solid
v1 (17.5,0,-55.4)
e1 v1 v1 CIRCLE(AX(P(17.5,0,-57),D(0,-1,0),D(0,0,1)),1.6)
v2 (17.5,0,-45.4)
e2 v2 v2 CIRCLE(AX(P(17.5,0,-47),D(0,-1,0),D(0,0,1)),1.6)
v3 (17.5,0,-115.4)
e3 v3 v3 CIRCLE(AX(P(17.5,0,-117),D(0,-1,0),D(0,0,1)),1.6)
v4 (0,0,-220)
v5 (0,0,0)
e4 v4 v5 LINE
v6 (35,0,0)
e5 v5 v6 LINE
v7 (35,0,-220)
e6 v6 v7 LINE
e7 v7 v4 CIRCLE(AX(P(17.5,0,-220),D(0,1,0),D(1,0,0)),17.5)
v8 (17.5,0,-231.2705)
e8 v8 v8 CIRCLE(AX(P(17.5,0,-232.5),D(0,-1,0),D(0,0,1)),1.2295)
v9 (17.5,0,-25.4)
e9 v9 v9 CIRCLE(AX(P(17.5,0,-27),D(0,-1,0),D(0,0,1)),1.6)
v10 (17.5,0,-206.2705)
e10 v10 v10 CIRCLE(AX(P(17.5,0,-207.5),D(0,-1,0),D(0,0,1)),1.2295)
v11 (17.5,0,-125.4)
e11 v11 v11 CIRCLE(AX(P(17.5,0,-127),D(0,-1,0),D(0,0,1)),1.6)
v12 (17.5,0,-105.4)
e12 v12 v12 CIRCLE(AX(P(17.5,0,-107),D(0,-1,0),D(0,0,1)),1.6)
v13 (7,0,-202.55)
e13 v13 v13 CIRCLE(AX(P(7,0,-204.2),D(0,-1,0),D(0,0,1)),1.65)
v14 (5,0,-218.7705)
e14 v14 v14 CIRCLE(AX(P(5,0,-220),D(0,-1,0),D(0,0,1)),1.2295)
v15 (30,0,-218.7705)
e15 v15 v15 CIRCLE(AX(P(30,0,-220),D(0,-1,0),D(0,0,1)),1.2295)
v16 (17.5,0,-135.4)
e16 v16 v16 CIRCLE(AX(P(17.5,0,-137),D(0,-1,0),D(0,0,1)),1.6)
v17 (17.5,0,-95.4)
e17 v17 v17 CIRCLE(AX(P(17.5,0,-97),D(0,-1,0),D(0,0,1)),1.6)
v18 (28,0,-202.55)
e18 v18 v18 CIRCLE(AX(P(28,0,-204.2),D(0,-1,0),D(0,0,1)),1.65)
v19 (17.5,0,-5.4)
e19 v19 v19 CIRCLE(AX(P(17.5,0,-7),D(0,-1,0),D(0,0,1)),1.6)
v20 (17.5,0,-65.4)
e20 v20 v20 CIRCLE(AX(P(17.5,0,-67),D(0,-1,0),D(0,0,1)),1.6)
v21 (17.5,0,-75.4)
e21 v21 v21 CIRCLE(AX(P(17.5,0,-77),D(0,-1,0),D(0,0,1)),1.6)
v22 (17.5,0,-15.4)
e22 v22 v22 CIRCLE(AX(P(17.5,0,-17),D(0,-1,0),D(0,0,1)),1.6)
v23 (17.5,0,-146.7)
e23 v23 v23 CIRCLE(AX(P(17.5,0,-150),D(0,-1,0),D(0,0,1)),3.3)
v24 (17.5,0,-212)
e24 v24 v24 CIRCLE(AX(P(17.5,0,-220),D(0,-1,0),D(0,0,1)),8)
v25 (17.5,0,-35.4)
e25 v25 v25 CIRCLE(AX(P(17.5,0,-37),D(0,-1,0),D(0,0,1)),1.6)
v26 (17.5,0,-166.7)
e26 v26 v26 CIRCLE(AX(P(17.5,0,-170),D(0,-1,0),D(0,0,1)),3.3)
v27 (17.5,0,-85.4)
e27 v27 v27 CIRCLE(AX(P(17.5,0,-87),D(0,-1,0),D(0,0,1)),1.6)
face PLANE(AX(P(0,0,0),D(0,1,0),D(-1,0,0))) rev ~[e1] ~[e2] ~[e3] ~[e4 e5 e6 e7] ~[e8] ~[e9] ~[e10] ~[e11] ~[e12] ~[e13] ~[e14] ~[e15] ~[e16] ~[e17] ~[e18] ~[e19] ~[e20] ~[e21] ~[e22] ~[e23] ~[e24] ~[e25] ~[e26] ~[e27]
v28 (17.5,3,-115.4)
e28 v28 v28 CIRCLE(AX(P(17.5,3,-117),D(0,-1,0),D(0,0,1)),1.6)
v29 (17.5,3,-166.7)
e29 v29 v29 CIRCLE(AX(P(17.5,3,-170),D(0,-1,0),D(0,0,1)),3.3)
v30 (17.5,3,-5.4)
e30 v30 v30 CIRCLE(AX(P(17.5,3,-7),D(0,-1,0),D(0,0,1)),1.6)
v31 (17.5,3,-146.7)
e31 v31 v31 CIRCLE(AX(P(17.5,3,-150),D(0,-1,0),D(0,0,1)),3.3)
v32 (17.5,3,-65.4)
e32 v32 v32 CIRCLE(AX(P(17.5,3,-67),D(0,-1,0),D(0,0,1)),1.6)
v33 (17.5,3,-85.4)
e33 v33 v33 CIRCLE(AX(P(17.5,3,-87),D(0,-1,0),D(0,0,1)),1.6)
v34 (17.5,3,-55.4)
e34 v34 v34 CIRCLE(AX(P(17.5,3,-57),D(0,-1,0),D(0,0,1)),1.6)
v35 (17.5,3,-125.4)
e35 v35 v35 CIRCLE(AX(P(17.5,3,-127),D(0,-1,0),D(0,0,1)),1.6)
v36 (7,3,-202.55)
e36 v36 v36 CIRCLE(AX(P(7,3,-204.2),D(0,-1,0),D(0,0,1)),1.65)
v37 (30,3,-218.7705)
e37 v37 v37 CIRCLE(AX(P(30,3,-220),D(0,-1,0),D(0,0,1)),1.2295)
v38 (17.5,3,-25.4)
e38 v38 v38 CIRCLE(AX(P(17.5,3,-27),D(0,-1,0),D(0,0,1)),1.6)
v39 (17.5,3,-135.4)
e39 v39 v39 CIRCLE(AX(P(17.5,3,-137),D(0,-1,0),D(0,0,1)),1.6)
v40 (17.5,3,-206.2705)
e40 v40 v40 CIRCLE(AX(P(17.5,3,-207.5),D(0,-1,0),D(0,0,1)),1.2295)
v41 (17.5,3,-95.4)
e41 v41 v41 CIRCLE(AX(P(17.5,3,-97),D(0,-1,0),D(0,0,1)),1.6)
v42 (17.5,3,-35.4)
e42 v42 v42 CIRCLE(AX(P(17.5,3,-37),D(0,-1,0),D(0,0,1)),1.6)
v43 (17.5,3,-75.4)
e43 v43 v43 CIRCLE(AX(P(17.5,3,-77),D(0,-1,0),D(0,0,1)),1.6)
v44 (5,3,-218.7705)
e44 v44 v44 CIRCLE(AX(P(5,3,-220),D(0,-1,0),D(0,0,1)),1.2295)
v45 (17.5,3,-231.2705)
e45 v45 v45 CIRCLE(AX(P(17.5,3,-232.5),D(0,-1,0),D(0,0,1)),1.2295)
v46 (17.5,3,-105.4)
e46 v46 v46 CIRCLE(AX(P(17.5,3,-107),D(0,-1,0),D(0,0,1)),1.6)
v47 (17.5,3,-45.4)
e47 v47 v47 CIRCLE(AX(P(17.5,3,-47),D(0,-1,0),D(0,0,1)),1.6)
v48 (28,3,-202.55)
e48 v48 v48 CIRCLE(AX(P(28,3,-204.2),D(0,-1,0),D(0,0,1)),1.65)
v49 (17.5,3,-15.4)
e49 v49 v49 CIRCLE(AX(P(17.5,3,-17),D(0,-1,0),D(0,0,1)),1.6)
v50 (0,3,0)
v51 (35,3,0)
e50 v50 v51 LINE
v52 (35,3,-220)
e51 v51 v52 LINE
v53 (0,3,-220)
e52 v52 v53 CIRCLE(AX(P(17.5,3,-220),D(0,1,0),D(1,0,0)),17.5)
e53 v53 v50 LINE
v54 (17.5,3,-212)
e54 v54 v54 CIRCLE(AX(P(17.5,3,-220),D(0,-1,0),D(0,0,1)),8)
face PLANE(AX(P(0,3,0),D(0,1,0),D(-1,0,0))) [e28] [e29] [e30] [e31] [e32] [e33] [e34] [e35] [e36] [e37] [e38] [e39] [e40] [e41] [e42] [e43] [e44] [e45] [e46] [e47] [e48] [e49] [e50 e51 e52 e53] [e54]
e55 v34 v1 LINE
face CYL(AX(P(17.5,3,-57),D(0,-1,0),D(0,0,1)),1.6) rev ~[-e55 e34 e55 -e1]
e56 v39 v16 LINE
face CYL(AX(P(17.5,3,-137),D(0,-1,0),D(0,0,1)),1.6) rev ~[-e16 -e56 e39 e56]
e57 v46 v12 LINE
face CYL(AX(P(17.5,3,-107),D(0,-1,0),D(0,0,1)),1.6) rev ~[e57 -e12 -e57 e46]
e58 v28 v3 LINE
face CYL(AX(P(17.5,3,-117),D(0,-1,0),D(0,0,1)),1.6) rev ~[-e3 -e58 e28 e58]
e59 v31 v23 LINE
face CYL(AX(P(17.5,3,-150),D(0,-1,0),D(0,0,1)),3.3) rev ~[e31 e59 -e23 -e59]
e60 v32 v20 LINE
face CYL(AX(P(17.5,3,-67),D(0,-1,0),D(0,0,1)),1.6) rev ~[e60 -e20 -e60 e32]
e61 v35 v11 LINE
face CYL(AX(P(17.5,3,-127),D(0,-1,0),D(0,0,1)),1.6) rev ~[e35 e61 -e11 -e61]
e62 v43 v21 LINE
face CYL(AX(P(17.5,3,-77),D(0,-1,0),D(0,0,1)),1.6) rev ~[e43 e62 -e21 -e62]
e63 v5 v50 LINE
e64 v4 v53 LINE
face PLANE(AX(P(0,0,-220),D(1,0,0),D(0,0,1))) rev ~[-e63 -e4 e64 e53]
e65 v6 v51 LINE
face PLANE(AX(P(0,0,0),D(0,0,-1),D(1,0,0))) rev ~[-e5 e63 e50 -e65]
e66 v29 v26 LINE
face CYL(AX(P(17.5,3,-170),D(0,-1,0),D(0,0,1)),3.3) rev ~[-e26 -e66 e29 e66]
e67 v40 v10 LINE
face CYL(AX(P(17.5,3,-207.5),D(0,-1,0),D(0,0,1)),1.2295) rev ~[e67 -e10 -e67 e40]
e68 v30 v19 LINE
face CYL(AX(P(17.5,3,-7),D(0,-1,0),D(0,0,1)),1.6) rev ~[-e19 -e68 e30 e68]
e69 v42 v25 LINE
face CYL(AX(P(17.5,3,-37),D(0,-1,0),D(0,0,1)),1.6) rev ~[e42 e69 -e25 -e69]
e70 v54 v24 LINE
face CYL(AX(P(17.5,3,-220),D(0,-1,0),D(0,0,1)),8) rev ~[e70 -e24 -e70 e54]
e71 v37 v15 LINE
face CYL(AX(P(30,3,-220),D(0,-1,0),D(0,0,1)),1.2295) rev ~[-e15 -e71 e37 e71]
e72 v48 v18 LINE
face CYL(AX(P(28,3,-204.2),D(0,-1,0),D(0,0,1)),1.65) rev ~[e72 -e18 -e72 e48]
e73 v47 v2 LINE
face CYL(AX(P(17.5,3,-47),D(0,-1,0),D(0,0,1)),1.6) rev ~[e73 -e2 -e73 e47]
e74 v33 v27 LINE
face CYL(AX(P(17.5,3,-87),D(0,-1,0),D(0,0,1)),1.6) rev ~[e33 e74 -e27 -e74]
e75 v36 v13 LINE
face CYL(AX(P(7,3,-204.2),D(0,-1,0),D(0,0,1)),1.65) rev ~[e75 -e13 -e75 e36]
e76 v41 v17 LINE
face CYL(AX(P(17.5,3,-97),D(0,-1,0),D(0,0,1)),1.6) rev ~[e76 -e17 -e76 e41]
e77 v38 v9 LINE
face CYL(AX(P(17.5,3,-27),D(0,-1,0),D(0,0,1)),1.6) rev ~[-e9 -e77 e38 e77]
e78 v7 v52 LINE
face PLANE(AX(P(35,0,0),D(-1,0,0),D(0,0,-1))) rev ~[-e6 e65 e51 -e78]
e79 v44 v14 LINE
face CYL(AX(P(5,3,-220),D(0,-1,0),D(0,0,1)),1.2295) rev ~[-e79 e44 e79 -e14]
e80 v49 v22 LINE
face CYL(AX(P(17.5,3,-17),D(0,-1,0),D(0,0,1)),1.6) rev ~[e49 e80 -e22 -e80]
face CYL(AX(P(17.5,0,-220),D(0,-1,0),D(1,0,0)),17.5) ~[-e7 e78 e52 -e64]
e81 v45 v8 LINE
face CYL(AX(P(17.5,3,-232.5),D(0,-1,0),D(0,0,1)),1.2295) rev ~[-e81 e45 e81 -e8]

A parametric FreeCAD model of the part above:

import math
import FreeCAD as App
import Part
import Sketcher
from FreeCAD import Vector

doc = App.newDocument("Part")
body = doc.addObject("PartDesign::Body", "Body")

# Sketch on XZ plane
sketch1 = body.newObject("Sketcher::SketchObject", "Sketch")
sketch1.AttachmentSupport = (doc.getObject("XZ_Plane"), [""])
sketch1.MapMode = "FlatFace"
sketch1.addGeometry(Part.LineSegment(Vector(0, -220, 0), Vector(0, 0, 0)), False)
sketch1.addGeometry(Part.LineSegment(Vector(0, 0, 0), Vector(35, 0, 0)), False)
sketch1.addGeometry(Part.LineSegment(Vector(35, 0, 0), Vector(35, -220, 0)), False)
sketch1.addGeometry(Part.ArcOfCircle(Part.Circle(Vector(18, -220, 0), Vector(0, 0, 1), 18), math.radians(180), math.radians(360)), False)
sketch1.addConstraint(Sketcher.Constraint("Coincident", 0, 2, 1, 1))
sketch1.addConstraint(Sketcher.Constraint("Coincident", 1, 2, 2, 1))
sketch1.addConstraint(Sketcher.Constraint("Tangent", 2, 2, 3, 2))
sketch1.addConstraint(Sketcher.Constraint("Tangent", 3, 1, 0, 1))
sketch1.addConstraint(Sketcher.Constraint("Vertical", 0))
sketch1.addConstraint(Sketcher.Constraint("Horizontal", 1))
sketch1.addConstraint(Sketcher.Constraint("Vertical", 2))
sketch1.addConstraint(Sketcher.Constraint("Coincident", 0, 2, -1, 1))
sketch1.addConstraint(Sketcher.Constraint("Radius", 3, 17.5))
sketch1.addConstraint(Sketcher.Constraint("DistanceY", 0, 1, 0, 2, 220.0))
pad1 = body.newObject("PartDesign::Pad", "Pad")
pad1.Profile = sketch1
pad1.Length = 3
pad1.Reversed = True

# Sketch on XZ plane
sketch2 = body.newObject("Sketcher::SketchObject", "Sketch001")
sketch2.AttachmentSupport = (doc.getObject("XZ_Plane"), [""])
sketch2.MapMode = "FlatFace"
sketch2.AttachmentOffset = App.Placement(Vector(0, 0, -3), App.Rotation())
sketch2.addGeometry(Part.Circle(Vector(18, -220, 0), Vector(0, 0, 1), 8), False)
sketch2.addConstraint(Sketcher.Constraint("Diameter", 0, 16.0))
sketch2.addConstraint(Sketcher.Constraint("DistanceY", 0, 3, -1, 1, 220.0))
sketch2.addConstraint(Sketcher.Constraint("DistanceX", -1, 1, 0, 3, 17.5))
doc.recompute()
hole = body.newObject("PartDesign::Hole", "Hole")
hole.Profile = sketch2
hole.ThreadType = "None"
hole.Diameter = 16
hole.DepthType = "ThroughAll"
hole.Reversed = True

# Sketch on XZ plane
sketch3 = body.newObject("Sketcher::SketchObject", "Sketch002")
sketch3.AttachmentSupport = (doc.getObject("XZ_Plane"), [""])
sketch3.MapMode = "FlatFace"
sketch3.AttachmentOffset = App.Placement(Vector(0, 0, -3), App.Rotation())
sketch3.addGeometry(Part.Circle(Vector(5, -220, 0), Vector(0, 0, 1), 1.2), False)
sketch3.addGeometry(Part.Circle(Vector(30, -220, 0), Vector(0, 0, 1), 1.2), False)
sketch3.addGeometry(Part.Circle(Vector(17.5, -232.5, 0), Vector(0, 0, 1), 1.2), False)
sketch3.addGeometry(Part.Circle(Vector(17.5, -207.5, 0), Vector(0, 0, 1), 1.2), False)
sketch3.addConstraint(Sketcher.Constraint("Equal", 0, 1))
sketch3.addConstraint(Sketcher.Constraint("Equal", 1, 2))
sketch3.addConstraint(Sketcher.Constraint("Equal", 2, 3))
sketch3.addConstraint(Sketcher.Constraint("Horizontal", 0, 3, 1, 3))
sketch3.addConstraint(Sketcher.Constraint("Vertical", 2, 3, 3, 3))
sketch3.addConstraint(Sketcher.Constraint("Diameter", 0, 2.459))
sketch3.addConstraint(Sketcher.Constraint("DistanceX", -1, 1, 0, 3, 5.0))
sketch3.addConstraint(Sketcher.Constraint("DistanceY", 0, 3, -1, 1, 220.0))
sketch3.addConstraint(Sketcher.Constraint("DistanceX", -1, 1, 1, 3, 30.0))
sketch3.addConstraint(Sketcher.Constraint("DistanceY", 2, 3, 3, 3, 25.0))
sketch3.addConstraint(Sketcher.Constraint("DistanceX", -1, 1, 2, 3, 17.5))
sketch3.addConstraint(Sketcher.Constraint("DistanceY", 2, 3, -1, 1, 232.5))
doc.recompute()
hole2 = body.newObject("PartDesign::Hole", "Hole001")
hole2.Profile = sketch3
hole2.ThreadType = "None"
hole2.Diameter = 2.459
hole2.DepthType = "ThroughAll"
hole2.Reversed = True

# Sketch on XZ plane
sketch4 = body.newObject("Sketcher::SketchObject", "Sketch003")
sketch4.AttachmentSupport = (doc.getObject("XZ_Plane"), [""])
sketch4.MapMode = "FlatFace"
sketch4.AttachmentOffset = App.Placement(Vector(0, 0, -3), App.Rotation())
sketch4.addGeometry(Part.Circle(Vector(17.5, -137, 0), Vector(0, 0, 1), 1.6), False)
sketch4.addGeometry(Part.Circle(Vector(17.5, -127, 0), Vector(0, 0, 1), 1.6), False)
sketch4.addGeometry(Part.Circle(Vector(17.5, -117, 0), Vector(0, 0, 1), 1.6), False)
sketch4.addGeometry(Part.Circle(Vector(17.5, -107, 0), Vector(0, 0, 1), 1.6), False)
sketch4.addGeometry(Part.Circle(Vector(17.5, -97, 0), Vector(0, 0, 1), 1.6), False)
sketch4.addGeometry(Part.Circle(Vector(17.5, -87, 0), Vector(0, 0, 1), 1.6), False)
sketch4.addGeometry(Part.Circle(Vector(17.5, -77, 0), Vector(0, 0, 1), 1.6), False)
sketch4.addGeometry(Part.Circle(Vector(17.5, -67, 0), Vector(0, 0, 1), 1.6), False)
sketch4.addGeometry(Part.Circle(Vector(17.5, -57, 0), Vector(0, 0, 1), 1.6), False)
sketch4.addGeometry(Part.Circle(Vector(17.5, -47, 0), Vector(0, 0, 1), 1.6), False)
sketch4.addGeometry(Part.Circle(Vector(17.5, -37, 0), Vector(0, 0, 1), 1.6), False)
sketch4.addGeometry(Part.Circle(Vector(17.5, -27, 0), Vector(0, 0, 1), 1.6), False)
sketch4.addGeometry(Part.Circle(Vector(17.5, -17, 0), Vector(0, 0, 1), 1.6), False)
sketch4.addGeometry(Part.Circle(Vector(17.5, -7, 0), Vector(0, 0, 1), 1.6), False)
sketch4.addConstraint(Sketcher.Constraint("Equal", 0, 1))
sketch4.addConstraint(Sketcher.Constraint("Equal", 1, 2))
sketch4.addConstraint(Sketcher.Constraint("Equal", 2, 3))
sketch4.addConstraint(Sketcher.Constraint("Equal", 3, 4))
sketch4.addConstraint(Sketcher.Constraint("Equal", 4, 5))
sketch4.addConstraint(Sketcher.Constraint("Equal", 5, 6))
sketch4.addConstraint(Sketcher.Constraint("Equal", 6, 7))
sketch4.addConstraint(Sketcher.Constraint("Equal", 7, 8))
sketch4.addConstraint(Sketcher.Constraint("Equal", 8, 9))
sketch4.addConstraint(Sketcher.Constraint("Equal", 9, 10))
sketch4.addConstraint(Sketcher.Constraint("Equal", 10, 11))
sketch4.addConstraint(Sketcher.Constraint("Equal", 11, 12))
sketch4.addConstraint(Sketcher.Constraint("Equal", 12, 13))
sketch4.addConstraint(Sketcher.Constraint("Vertical", 0, 3, 1, 3))
sketch4.addConstraint(Sketcher.Constraint("Vertical", 1, 3, 2, 3))
sketch4.addConstraint(Sketcher.Constraint("Vertical", 2, 3, 3, 3))
sketch4.addConstraint(Sketcher.Constraint("Vertical", 3, 3, 4, 3))
sketch4.addConstraint(Sketcher.Constraint("Vertical", 4, 3, 5, 3))
sketch4.addConstraint(Sketcher.Constraint("Vertical", 5, 3, 6, 3))
sketch4.addConstraint(Sketcher.Constraint("Vertical", 6, 3, 7, 3))
sketch4.addConstraint(Sketcher.Constraint("Vertical", 7, 3, 8, 3))
sketch4.addConstraint(Sketcher.Constraint("Vertical", 8, 3, 9, 3))
sketch4.addConstraint(Sketcher.Constraint("Vertical", 9, 3, 10, 3))
sketch4.addConstraint(Sketcher.Constraint("Vertical", 10, 3, 11, 3))
sketch4.addConstraint(Sketcher.Constraint("Vertical", 11, 3, 12, 3))
sketch4.addConstraint(Sketcher.Constraint("Vertical", 12, 3, 13, 3))
sketch4.addConstraint(Sketcher.Constraint("Diameter", 0, 3.2))
sketch4.addConstraint(Sketcher.Constraint("DistanceY", 0, 3, -1, 1, 137.0))
sketch4.addConstraint(Sketcher.Constraint("DistanceY", 1, 3, -1, 1, 127.0))
sketch4.addConstraint(Sketcher.Constraint("DistanceY", 2, 3, -1, 1, 117.0))
sketch4.addConstraint(Sketcher.Constraint("DistanceY", 3, 3, -1, 1, 107.0))
sketch4.addConstraint(Sketcher.Constraint("DistanceY", 4, 3, -1, 1, 97.0))
sketch4.addConstraint(Sketcher.Constraint("DistanceY", 5, 3, -1, 1, 87.0))
sketch4.addConstraint(Sketcher.Constraint("DistanceY", 6, 3, -1, 1, 77.0))
sketch4.addConstraint(Sketcher.Constraint("DistanceY", 7, 3, -1, 1, 67.0))
sketch4.addConstraint(Sketcher.Constraint("DistanceY", 8, 3, -1, 1, 57.0))
sketch4.addConstraint(Sketcher.Constraint("DistanceY", 9, 3, -1, 1, 47.0))
sketch4.addConstraint(Sketcher.Constraint("DistanceY", 10, 3, -1, 1, 37.0))
sketch4.addConstraint(Sketcher.Constraint("DistanceY", 11, 3, -1, 1, 27.0))
sketch4.addConstraint(Sketcher.Constraint("DistanceY", 12, 3, -1, 1, 17.0))
sketch4.addConstraint(Sketcher.Constraint("DistanceY", 13, 3, -1, 1, 7.0))
sketch4.addConstraint(Sketcher.Constraint("DistanceX", -1, 1, 0, 3, 17.5))
doc.recompute()
hole3 = body.newObject("PartDesign::Hole", "Hole002")
hole3.Profile = sketch4
hole3.ThreadType = "None"
hole3.Diameter = 3.2
hole3.DepthType = "ThroughAll"
hole3.Reversed = True

# Sketch on XZ plane
sketch5 = body.newObject("Sketcher::SketchObject", "Sketch004")
sketch5.AttachmentSupport = (doc.getObject("XZ_Plane"), [""])
sketch5.MapMode = "FlatFace"
sketch5.AttachmentOffset = App.Placement(Vector(0, 0, -3), App.Rotation())
sketch5.addGeometry(Part.Circle(Vector(17.5, -150, 0), Vector(0, 0, 1), 3.3), False)
sketch5.addGeometry(Part.Circle(Vector(17.5, -170, 0), Vector(0, 0, 1), 3.3), False)
sketch5.addConstraint(Sketcher.Constraint("Equal", 0, 1))
sketch5.addConstraint(Sketcher.Constraint("Vertical", 0, 3, 1, 3))
sketch5.addConstraint(Sketcher.Constraint("Diameter", 0, 6.6))
sketch5.addConstraint(Sketcher.Constraint("DistanceY", 0, 3, -1, 1, 150.0))
sketch5.addConstraint(Sketcher.Constraint("DistanceY", 1, 3, -1, 1, 170.0))
sketch5.addConstraint(Sketcher.Constraint("DistanceX", -1, 1, 0, 3, 17.5))
doc.recompute()
hole4 = body.newObject("PartDesign::Hole", "Hole003")
hole4.Profile = sketch5
hole4.ThreadType = "None"
hole4.Diameter = 6.6
hole4.DepthType = "ThroughAll"
hole4.Reversed = True

# Sketch on XZ plane
sketch6 = body.newObject("Sketcher::SketchObject", "Sketch005")
sketch6.AttachmentSupport = (doc.getObject("XZ_Plane"), [""])
sketch6.MapMode = "FlatFace"
sketch6.AttachmentOffset = App.Placement(Vector(0, 0, -3), App.Rotation())
sketch6.addGeometry(Part.Circle(Vector(28, -204.2, 0), Vector(0, 0, 1), 1.6), False)
sketch6.addGeometry(Part.Circle(Vector(7, -204.2, 0), Vector(0, 0, 1), 1.6), False)
sketch6.addConstraint(Sketcher.Constraint("Equal", 0, 1))
sketch6.addConstraint(Sketcher.Constraint("Horizontal", 0, 3, 1, 3))
sketch6.addConstraint(Sketcher.Constraint("Diameter", 0, 3.3))
sketch6.addConstraint(Sketcher.Constraint("DistanceX", -1, 1, 0, 3, 28.0))
sketch6.addConstraint(Sketcher.Constraint("DistanceX", -1, 1, 1, 3, 7.0))
sketch6.addConstraint(Sketcher.Constraint("DistanceY", 0, 3, -1, 1, 204.2))
doc.recompute()
hole5 = body.newObject("PartDesign::Hole", "Hole004")
hole5.Profile = sketch6
hole5.ThreadType = "None"
hole5.Diameter = 3.3
hole5.DepthType = "ThroughAll"
hole5.Reversed = True

doc.recompute()
